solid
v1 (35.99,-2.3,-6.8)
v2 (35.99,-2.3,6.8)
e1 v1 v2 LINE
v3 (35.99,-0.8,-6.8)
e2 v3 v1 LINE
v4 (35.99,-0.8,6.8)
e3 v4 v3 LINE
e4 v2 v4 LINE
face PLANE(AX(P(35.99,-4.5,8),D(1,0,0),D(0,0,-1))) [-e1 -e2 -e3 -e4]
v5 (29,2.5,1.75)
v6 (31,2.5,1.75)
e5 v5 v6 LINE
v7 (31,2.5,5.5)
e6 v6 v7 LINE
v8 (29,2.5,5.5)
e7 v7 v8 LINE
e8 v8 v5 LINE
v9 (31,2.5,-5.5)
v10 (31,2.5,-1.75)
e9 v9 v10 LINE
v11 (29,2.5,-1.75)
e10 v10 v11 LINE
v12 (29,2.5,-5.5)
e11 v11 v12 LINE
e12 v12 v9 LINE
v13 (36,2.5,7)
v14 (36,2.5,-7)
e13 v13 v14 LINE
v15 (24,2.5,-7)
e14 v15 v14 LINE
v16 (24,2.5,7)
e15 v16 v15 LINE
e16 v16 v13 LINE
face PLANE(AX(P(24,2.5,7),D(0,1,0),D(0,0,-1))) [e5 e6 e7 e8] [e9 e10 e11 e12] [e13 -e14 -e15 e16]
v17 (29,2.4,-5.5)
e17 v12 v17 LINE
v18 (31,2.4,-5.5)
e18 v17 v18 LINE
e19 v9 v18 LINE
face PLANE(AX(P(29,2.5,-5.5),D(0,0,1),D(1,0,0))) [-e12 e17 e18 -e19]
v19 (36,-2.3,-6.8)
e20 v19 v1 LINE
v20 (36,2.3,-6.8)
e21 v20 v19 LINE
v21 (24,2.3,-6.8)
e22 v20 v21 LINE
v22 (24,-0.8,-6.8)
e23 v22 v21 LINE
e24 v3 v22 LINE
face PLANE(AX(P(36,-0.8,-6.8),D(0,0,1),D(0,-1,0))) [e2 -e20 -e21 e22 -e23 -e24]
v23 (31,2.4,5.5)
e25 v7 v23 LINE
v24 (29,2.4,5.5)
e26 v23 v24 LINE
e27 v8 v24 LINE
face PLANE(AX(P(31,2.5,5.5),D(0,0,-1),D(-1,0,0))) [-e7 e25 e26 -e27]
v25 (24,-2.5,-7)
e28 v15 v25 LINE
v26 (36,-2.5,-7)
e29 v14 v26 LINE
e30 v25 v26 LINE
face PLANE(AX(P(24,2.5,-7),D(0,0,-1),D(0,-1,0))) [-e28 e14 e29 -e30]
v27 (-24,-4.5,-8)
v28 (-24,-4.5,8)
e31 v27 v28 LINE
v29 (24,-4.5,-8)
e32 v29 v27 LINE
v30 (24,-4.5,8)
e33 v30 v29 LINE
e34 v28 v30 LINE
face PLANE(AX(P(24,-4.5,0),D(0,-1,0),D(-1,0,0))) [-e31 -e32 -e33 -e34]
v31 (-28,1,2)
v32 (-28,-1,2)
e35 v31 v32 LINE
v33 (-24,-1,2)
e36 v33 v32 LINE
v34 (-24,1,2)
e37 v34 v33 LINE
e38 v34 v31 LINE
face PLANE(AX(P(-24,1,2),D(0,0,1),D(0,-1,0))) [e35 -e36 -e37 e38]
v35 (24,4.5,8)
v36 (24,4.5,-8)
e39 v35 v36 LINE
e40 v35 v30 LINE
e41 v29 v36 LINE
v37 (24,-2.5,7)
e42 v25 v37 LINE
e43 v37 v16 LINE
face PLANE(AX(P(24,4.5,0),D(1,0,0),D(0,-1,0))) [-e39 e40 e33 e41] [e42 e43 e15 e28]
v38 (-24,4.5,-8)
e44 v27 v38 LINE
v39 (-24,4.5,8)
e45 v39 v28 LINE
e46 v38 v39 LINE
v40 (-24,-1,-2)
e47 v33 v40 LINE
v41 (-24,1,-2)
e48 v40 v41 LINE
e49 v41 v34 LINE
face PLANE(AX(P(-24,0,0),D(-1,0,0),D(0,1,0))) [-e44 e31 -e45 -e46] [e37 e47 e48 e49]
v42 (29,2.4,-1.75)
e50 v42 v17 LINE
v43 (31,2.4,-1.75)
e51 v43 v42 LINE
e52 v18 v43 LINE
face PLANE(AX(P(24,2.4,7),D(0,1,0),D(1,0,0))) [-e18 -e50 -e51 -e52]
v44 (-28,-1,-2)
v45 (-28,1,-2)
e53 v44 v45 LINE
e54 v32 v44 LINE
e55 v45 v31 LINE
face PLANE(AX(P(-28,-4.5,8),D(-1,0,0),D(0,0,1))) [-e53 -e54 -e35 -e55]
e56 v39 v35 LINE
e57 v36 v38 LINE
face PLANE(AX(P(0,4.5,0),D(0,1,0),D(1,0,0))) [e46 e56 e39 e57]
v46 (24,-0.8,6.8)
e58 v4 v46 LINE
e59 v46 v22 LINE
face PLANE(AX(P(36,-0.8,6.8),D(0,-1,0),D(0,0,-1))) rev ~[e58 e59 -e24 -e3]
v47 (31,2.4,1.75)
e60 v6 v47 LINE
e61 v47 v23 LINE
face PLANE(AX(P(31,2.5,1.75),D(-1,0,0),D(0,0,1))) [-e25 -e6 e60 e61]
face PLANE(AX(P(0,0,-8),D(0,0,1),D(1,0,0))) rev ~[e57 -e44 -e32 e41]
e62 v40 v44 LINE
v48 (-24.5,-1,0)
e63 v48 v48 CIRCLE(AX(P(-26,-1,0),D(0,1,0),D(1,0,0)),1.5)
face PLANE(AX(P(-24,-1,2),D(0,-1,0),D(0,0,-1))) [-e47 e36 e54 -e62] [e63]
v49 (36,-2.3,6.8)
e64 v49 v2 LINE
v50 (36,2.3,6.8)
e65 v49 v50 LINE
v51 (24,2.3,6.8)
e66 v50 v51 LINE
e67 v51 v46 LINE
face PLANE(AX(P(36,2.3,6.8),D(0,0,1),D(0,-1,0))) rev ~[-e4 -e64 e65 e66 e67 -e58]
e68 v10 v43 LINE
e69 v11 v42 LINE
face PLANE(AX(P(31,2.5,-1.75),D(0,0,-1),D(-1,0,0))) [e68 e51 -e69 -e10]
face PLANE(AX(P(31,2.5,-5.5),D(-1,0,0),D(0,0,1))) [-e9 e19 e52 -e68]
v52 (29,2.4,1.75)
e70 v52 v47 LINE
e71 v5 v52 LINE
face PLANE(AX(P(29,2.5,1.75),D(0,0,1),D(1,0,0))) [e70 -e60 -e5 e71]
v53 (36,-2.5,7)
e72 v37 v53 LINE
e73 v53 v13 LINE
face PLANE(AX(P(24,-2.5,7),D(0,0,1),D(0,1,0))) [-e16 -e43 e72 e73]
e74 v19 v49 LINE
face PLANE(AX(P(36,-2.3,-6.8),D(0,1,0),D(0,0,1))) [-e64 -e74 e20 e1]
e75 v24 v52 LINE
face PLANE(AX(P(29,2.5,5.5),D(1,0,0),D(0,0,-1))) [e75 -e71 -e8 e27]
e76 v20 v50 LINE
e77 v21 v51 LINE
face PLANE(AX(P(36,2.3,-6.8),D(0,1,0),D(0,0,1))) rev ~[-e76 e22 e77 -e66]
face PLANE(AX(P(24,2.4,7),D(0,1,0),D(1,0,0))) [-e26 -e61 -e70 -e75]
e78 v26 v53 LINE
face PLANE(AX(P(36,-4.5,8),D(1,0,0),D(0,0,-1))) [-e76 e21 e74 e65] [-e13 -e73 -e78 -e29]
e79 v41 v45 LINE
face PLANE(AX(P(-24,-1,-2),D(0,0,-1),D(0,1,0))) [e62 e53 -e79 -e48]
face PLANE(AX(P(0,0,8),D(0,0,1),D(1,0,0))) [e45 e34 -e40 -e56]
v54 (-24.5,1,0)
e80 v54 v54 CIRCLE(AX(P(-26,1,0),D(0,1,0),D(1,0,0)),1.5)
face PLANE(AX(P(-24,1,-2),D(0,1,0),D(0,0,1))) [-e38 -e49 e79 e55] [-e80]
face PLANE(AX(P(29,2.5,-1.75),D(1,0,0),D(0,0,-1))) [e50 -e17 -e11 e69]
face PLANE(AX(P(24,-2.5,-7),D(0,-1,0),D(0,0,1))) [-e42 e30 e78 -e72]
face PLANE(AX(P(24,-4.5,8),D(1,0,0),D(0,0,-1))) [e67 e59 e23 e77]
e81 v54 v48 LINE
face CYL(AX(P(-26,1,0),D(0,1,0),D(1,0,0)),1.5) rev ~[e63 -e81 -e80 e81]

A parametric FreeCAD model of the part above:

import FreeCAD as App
import Part
import Sketcher


def add_polygon(sketch, points):
    """Adds a closed chain of lines whose ends are joined by coincident constraints."""
    first, n = sketch.GeometryCount, len(points)
    for a, b in zip(points, points[1:] + points[:1]):
        sketch.addGeometry(Part.LineSegment(App.Vector(*a, 0), App.Vector(*b, 0)), False)
    for i in range(n):
        sketch.addConstraint(Sketcher.Constraint("Coincident", first + i, 2, first + (i + 1) % n, 1))

doc = App.newDocument("Part")
body = doc.addObject("PartDesign::Body", "Body")

sketch1 = doc.addObject("Sketcher::SketchObject", "Sketch")
body.addObject(sketch1)
sketch1.AttachmentSupport = (doc.XY_Plane, [""])
sketch1.MapMode = "FlatFace"
add_polygon(sketch1, [(24, 4.5), (-24, 4.5), (-24, -4.5), (24, -4.5)])
sketch1.addConstraint(Sketcher.Constraint("Horizontal", 0))
sketch1.addConstraint(Sketcher.Constraint("Vertical", 1))
sketch1.addConstraint(Sketcher.Constraint("Horizontal", 2))
sketch1.addConstraint(Sketcher.Constraint("Vertical", 3))
sketch1.addConstraint(Sketcher.Constraint("Symmetric", 0, 2, 2, 2, -1, 1))
sketch1.addConstraint(Sketcher.Constraint("DistanceX", 0, 2, 0, 1, 48.0))
sketch1.addConstraint(Sketcher.Constraint("DistanceY", 1, 2, 1, 1, 9.0))
pad1 = doc.addObject("PartDesign::Pad", "Pad")
body.addObject(pad1)
pad1.Profile = sketch1
pad1.Length = 16
pad1.Midplane = True

sketch2 = doc.addObject("Sketcher::SketchObject", "Sketch001")
body.addObject(sketch2)
sketch2.AttachmentSupport = (doc.YZ_Plane, [""])
sketch2.MapMode = "FlatFace"
sketch2.AttachmentOffset = App.Placement(App.Vector(0, 0, 24), App.Rotation())
add_polygon(sketch2, [(2.5, -7), (2.5, 7), (-2.5, 7), (-2.5, -7)])
sketch2.addConstraint(Sketcher.Constraint("Vertical", 0))
sketch2.addConstraint(Sketcher.Constraint("Horizontal", 1))
sketch2.addConstraint(Sketcher.Constraint("Vertical", 2))
sketch2.addConstraint(Sketcher.Constraint("Horizontal", 3))
sketch2.addConstraint(Sketcher.Constraint("Symmetric", 0, 2, 2, 2, -1, 1))
sketch2.addConstraint(Sketcher.Constraint("DistanceX", 1, 2, 1, 1, 5.0))
sketch2.addConstraint(Sketcher.Constraint("DistanceY", 0, 1, 0, 2, 14.0))
pad2 = doc.addObject("PartDesign::Pad", "Pad001")
body.addObject(pad2)
pad2.Profile = sketch2
pad2.Length = 12

sketch3 = doc.addObject("Sketcher::SketchObject", "Sketch002")
body.addObject(sketch3)
sketch3.AttachmentSupport = (doc.YZ_Plane, [""])
sketch3.MapMode = "FlatFace"
sketch3.AttachmentOffset = App.Placement(App.Vector(0, 0, 36), App.Rotation())
add_polygon(sketch3, [(2.3, 6.8), (-0.8, 6.8), (-0.8, -6.8), (2.3, -6.8)])
sketch3.addConstraint(Sketcher.Constraint("Horizontal", 0))
sketch3.addConstraint(Sketcher.Constraint("Vertical", 1))
sketch3.addConstraint(Sketcher.Constraint("Horizontal", 2))
sketch3.addConstraint(Sketcher.Constraint("Vertical", 3))
sketch3.addConstraint(Sketcher.Constraint("DistanceX", 0, 2, 0, 1, 3.1))
sketch3.addConstraint(Sketcher.Constraint("DistanceY", 1, 2, 1, 1, 13.6))
sketch3.addConstraint(Sketcher.Constraint("DistanceX", 0, 2, -1, 1, 0.8))
sketch3.addConstraint(Sketcher.Constraint("DistanceY", -1, 1, 0, 2, 6.8))
pocket1 = doc.addObject("PartDesign::Pocket", "Pocket")
body.addObject(pocket1)
pocket1.Profile = sketch3
pocket1.Length = 12

sketch4 = doc.addObject("Sketcher::SketchObject", "Sketch003")
body.addObject(sketch4)
sketch4.AttachmentSupport = (doc.YZ_Plane, [""])
sketch4.MapMode = "FlatFace"
sketch4.AttachmentOffset = App.Placement(App.Vector(0, 0, 36), App.Rotation())
add_polygon(sketch4, [(-0.8, -6.8), (-0.8, 6.8), (-2.3, 6.8), (-2.3, -6.8)])
sketch4.addConstraint(Sketcher.Constraint("Vertical", 0))
sketch4.addConstraint(Sketcher.Constraint("Horizontal", 1))
sketch4.addConstraint(Sketcher.Constraint("Vertical", 2))
sketch4.addConstraint(Sketcher.Constraint("Horizontal", 3))
sketch4.addConstraint(Sketcher.Constraint("DistanceX", 1, 2, 1, 1, 1.5))
sketch4.addConstraint(Sketcher.Constraint("DistanceY", 0, 1, 0, 2, 13.6))
sketch4.addConstraint(Sketcher.Constraint("DistanceX", 0, 2, -1, 1, 0.8))
sketch4.addConstraint(Sketcher.Constraint("DistanceY", -1, 1, 0, 2, 6.8))
pocket2 = doc.addObject("PartDesign::Pocket", "Pocket001")
body.addObject(pocket2)
pocket2.Profile = sketch4
pocket2.Length = 0.01

sketch5 = doc.addObject("Sketcher::SketchObject", "Sketch004")
body.addObject(sketch5)
sketch5.AttachmentSupport = (doc.XZ_Plane, [""])
sketch5.MapMode = "FlatFace"
sketch5.AttachmentOffset = App.Placement(App.Vector(0, 0, -2.5), App.Rotation())
add_polygon(sketch5, [(31, -5.5), (29, -5.5), (29, -1.75), (31, -1.75)])
add_polygon(sketch5, [(31, 1.75), (29, 1.75), (29, 5.5), (31, 5.5)])
sketch5.addConstraint(Sketcher.Constraint("Horizontal", 0))
sketch5.addConstraint(Sketcher.Constraint("Vertical", 1))
sketch5.addConstraint(Sketcher.Constraint("Horizontal", 2))
sketch5.addConstraint(Sketcher.Constraint("Vertical", 3))
sketch5.addConstraint(Sketcher.Constraint("Horizontal", 4))
sketch5.addConstraint(Sketcher.Constraint("Vertical", 5))
sketch5.addConstraint(Sketcher.Constraint("Horizontal", 6))
sketch5.addConstraint(Sketcher.Constraint("Vertical", 7))
sketch5.addConstraint(Sketcher.Constraint("Symmetric", 1, 2, 4, 2, -1))
sketch5.addConstraint(Sketcher.Constraint("Symmetric", 3, 2, 6, 2, -1))
sketch5.addConstraint(Sketcher.Constraint("DistanceX", 0, 2, 0, 1, 2.0))
sketch5.addConstraint(Sketcher.Constraint("DistanceY", 1, 1, 1, 2, 3.75))
sketch5.addConstraint(Sketcher.Constraint("DistanceY", 1, 2, 4, 2, 3.5))
sketch5.addConstraint(Sketcher.Constraint("DistanceX", -1, 1, 0, 2, 29.0))
pocket3 = doc.addObject("PartDesign::Pocket", "Pocket002")
body.addObject(pocket3)
pocket3.Profile = sketch5
pocket3.Length = 0.1
pocket3.Reversed = True

sketch6 = doc.addObject("Sketcher::SketchObject", "Sketch005")
body.addObject(sketch6)
sketch6.AttachmentSupport = (doc.YZ_Plane, [""])
sketch6.MapMode = "FlatFace"
sketch6.AttachmentOffset = App.Placement(App.Vector(0, 0, -24), App.Rotation())
add_polygon(sketch6, [(1, 2), (1, -2), (-1, -2), (-1, 2)])
sketch6.addConstraint(Sketcher.Constraint("Vertical", 0))
sketch6.addConstraint(Sketcher.Constraint("Horizontal", 1))
sketch6.addConstraint(Sketcher.Constraint("Vertical", 2))
sketch6.addConstraint(Sketcher.Constraint("Horizontal", 3))
sketch6.addConstraint(Sketcher.Constraint("Symmetric", 0, 2, 2, 2, -1, 1))
sketch6.addConstraint(Sketcher.Constraint("DistanceX", 1, 2, 1, 1, 2.0))
sketch6.addConstraint(Sketcher.Constraint("DistanceY", 0, 2, -1, 1, 2.0))
pad3 = doc.addObject("PartDesign::Pad", "Pad002")
body.addObject(pad3)
pad3.Profile = sketch6
pad3.Length = 4
pad3.Reversed = True

sketch7 = doc.addObject("Sketcher::SketchObject", "Sketch006")
body.addObject(sketch7)
sketch7.AttachmentSupport = (doc.XZ_Plane, [""])
sketch7.MapMode = "FlatFace"
sketch7.AttachmentOffset = App.Placement(App.Vector(0, 0, -1), App.Rotation())
sketch7.addGeometry(Part.Circle(App.Vector(-26, 0, 0), App.Vector(0, 0, 1), 1.5), False)
sketch7.addConstraint(Sketcher.Constraint("PointOnObject", 0, 3, -1))
sketch7.addConstraint(Sketcher.Constraint("Diameter", 0, 3.0))
sketch7.addConstraint(Sketcher.Constraint("DistanceX", 0, 3, -1, 1, 26.0))
pocket4 = doc.addObject("PartDesign::Pocket", "Pocket003")
body.addObject(pocket4)
pocket4.Profile = sketch7
pocket4.Type = "ThroughAll"
pocket4.Reversed = True

doc.recompute()
